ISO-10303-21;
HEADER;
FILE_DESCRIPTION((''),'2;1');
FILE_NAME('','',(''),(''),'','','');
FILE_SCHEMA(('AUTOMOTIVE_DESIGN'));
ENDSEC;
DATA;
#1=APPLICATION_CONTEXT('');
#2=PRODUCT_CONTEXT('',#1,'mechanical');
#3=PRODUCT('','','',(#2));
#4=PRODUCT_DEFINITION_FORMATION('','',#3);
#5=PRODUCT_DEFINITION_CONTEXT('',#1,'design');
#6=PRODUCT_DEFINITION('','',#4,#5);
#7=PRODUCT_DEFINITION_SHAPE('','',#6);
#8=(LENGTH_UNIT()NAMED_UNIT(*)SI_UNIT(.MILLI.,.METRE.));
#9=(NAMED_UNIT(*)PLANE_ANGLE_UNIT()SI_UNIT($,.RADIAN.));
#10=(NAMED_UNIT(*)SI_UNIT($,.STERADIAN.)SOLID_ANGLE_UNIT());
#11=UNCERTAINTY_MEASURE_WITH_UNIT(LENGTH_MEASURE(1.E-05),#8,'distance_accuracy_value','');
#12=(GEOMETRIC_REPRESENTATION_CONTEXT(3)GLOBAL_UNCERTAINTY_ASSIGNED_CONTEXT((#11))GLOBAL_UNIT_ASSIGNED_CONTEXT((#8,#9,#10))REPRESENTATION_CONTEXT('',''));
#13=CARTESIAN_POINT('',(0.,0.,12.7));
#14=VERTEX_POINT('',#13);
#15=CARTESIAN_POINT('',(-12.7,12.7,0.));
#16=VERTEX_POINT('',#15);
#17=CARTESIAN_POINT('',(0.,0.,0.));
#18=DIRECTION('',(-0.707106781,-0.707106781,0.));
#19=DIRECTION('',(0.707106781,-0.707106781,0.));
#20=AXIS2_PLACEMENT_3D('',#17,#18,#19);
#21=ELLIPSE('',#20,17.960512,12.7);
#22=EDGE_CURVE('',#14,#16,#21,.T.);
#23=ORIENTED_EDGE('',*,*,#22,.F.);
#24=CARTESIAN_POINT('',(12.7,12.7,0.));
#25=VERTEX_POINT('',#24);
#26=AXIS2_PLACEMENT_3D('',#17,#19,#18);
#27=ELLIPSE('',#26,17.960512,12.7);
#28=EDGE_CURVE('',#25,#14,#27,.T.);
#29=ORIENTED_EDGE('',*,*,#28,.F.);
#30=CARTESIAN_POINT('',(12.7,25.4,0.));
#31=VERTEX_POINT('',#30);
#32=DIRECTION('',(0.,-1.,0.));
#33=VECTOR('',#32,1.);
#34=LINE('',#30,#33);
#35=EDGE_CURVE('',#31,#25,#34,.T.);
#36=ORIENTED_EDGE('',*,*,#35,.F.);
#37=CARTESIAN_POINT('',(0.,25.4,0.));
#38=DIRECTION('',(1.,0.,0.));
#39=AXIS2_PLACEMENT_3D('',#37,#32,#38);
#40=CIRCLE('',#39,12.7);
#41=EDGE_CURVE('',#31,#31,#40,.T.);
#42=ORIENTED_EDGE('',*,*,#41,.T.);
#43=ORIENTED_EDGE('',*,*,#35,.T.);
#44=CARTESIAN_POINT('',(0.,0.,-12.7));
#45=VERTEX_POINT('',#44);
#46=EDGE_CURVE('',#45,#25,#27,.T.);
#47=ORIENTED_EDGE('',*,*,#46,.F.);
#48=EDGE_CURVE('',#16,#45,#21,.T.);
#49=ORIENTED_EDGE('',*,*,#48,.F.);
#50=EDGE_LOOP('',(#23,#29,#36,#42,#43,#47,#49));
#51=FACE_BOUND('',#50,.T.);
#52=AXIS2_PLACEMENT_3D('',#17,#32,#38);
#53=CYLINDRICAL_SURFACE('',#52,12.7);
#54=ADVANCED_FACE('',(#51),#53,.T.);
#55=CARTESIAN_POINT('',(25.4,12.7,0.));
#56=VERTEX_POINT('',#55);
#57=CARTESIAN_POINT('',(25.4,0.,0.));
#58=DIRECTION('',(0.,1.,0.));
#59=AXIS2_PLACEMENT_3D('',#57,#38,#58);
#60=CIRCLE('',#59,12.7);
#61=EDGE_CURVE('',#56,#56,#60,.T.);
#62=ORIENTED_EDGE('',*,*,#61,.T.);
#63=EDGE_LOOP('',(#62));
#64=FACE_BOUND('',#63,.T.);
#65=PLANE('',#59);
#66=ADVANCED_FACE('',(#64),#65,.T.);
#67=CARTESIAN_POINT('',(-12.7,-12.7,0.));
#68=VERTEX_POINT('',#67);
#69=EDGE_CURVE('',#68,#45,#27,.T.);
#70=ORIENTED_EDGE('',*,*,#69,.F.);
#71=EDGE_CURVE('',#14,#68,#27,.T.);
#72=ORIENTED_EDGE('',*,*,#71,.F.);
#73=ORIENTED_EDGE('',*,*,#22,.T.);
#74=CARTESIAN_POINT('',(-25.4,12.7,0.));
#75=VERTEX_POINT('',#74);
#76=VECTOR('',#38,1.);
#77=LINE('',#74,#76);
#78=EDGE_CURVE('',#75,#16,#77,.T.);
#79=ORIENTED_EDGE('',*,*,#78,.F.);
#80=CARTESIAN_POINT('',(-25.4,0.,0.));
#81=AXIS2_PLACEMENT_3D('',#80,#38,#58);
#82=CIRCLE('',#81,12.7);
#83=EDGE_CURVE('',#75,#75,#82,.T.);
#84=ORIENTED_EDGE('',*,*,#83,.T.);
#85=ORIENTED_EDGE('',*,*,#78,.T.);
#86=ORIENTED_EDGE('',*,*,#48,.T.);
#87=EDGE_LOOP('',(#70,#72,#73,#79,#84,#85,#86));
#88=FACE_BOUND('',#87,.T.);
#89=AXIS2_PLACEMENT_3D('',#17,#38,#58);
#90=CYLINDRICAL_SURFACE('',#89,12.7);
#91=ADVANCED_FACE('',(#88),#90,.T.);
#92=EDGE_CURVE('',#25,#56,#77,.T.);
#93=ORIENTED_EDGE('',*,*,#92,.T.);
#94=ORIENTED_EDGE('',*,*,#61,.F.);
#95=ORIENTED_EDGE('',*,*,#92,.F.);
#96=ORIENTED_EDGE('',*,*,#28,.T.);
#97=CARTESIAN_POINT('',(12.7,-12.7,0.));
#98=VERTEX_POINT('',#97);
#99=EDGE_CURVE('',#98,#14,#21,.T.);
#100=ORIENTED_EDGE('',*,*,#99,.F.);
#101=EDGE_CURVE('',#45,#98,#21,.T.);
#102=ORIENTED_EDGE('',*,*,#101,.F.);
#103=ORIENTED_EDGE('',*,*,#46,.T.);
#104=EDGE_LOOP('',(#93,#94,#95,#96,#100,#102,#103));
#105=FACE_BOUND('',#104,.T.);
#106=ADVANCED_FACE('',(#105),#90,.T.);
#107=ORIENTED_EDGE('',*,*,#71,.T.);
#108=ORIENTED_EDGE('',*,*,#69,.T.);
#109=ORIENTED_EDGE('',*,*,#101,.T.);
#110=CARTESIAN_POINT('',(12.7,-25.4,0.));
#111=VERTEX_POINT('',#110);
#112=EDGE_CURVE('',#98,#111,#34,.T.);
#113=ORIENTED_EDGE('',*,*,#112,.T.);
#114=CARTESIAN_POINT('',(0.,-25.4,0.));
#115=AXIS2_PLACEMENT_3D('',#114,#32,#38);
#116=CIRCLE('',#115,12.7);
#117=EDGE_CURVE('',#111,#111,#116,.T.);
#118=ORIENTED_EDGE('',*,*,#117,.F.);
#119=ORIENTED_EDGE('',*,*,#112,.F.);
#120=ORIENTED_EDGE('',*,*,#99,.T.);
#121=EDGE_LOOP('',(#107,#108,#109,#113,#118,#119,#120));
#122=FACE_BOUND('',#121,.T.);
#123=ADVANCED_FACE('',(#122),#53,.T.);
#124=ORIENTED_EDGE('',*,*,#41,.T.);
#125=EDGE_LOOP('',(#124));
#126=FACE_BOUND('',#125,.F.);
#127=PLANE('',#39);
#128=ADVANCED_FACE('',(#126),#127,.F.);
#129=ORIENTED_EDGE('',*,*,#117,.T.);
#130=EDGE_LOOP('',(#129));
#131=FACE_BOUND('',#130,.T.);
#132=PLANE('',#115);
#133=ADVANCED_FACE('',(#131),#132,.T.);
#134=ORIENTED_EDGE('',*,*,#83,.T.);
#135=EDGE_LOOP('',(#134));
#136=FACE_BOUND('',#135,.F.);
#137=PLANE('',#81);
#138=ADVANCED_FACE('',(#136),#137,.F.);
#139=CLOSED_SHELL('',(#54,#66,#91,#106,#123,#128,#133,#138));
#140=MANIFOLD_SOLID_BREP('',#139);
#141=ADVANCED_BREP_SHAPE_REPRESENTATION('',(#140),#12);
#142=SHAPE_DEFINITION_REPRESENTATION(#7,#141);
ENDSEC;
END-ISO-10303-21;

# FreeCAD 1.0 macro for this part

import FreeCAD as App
import Part
import Sketcher
Q = App.Units.Quantity

doc = App.newDocument("Part")
body = doc.addObject("PartDesign::Body", "Body")

# Sketch on XZ plane
sketch1 = doc.addObject("Sketcher::SketchObject", "Sketch")
body.addObject(sketch1)
sketch1.AttachmentSupport = (doc.XZ_Plane, [""])
sketch1.MapMode = "FlatFace"
sketch1.addGeometry(Part.Circle(App.Vector(0, 0, 0), App.Vector(0, 0, 1), 12.7), False)
sketch1.addConstraint(Sketcher.Constraint("Coincident", 0, 3, -1, 1))
sketch1.addConstraint(Sketcher.Constraint("Diameter", 0, Q("1 in")))
pad1 = doc.addObject("PartDesign::Pad", "Pad")
body.addObject(pad1)
pad1.Profile = sketch1
pad1.Length = Q("2 in")
pad1.Midplane = True

# Sketch on YZ plane
sketch2 = doc.addObject("Sketcher::SketchObject", "Sketch001")
body.addObject(sketch2)
sketch2.AttachmentSupport = (doc.YZ_Plane, [""])
sketch2.MapMode = "FlatFace"
sketch2.addGeometry(Part.Circle(App.Vector(0, 0, 0), App.Vector(0, 0, 1), 12.7), False)
sketch2.addConstraint(Sketcher.Constraint("Coincident", 0, 3, -1, 1))
sketch2.addConstraint(Sketcher.Constraint("Diameter", 0, Q("1 in")))
pad2 = doc.addObject("PartDesign::Pad", "Pad001")
body.addObject(pad2)
pad2.Profile = sketch2
pad2.Length = Q("2 in")
pad2.Midplane = True

doc.recompute()
